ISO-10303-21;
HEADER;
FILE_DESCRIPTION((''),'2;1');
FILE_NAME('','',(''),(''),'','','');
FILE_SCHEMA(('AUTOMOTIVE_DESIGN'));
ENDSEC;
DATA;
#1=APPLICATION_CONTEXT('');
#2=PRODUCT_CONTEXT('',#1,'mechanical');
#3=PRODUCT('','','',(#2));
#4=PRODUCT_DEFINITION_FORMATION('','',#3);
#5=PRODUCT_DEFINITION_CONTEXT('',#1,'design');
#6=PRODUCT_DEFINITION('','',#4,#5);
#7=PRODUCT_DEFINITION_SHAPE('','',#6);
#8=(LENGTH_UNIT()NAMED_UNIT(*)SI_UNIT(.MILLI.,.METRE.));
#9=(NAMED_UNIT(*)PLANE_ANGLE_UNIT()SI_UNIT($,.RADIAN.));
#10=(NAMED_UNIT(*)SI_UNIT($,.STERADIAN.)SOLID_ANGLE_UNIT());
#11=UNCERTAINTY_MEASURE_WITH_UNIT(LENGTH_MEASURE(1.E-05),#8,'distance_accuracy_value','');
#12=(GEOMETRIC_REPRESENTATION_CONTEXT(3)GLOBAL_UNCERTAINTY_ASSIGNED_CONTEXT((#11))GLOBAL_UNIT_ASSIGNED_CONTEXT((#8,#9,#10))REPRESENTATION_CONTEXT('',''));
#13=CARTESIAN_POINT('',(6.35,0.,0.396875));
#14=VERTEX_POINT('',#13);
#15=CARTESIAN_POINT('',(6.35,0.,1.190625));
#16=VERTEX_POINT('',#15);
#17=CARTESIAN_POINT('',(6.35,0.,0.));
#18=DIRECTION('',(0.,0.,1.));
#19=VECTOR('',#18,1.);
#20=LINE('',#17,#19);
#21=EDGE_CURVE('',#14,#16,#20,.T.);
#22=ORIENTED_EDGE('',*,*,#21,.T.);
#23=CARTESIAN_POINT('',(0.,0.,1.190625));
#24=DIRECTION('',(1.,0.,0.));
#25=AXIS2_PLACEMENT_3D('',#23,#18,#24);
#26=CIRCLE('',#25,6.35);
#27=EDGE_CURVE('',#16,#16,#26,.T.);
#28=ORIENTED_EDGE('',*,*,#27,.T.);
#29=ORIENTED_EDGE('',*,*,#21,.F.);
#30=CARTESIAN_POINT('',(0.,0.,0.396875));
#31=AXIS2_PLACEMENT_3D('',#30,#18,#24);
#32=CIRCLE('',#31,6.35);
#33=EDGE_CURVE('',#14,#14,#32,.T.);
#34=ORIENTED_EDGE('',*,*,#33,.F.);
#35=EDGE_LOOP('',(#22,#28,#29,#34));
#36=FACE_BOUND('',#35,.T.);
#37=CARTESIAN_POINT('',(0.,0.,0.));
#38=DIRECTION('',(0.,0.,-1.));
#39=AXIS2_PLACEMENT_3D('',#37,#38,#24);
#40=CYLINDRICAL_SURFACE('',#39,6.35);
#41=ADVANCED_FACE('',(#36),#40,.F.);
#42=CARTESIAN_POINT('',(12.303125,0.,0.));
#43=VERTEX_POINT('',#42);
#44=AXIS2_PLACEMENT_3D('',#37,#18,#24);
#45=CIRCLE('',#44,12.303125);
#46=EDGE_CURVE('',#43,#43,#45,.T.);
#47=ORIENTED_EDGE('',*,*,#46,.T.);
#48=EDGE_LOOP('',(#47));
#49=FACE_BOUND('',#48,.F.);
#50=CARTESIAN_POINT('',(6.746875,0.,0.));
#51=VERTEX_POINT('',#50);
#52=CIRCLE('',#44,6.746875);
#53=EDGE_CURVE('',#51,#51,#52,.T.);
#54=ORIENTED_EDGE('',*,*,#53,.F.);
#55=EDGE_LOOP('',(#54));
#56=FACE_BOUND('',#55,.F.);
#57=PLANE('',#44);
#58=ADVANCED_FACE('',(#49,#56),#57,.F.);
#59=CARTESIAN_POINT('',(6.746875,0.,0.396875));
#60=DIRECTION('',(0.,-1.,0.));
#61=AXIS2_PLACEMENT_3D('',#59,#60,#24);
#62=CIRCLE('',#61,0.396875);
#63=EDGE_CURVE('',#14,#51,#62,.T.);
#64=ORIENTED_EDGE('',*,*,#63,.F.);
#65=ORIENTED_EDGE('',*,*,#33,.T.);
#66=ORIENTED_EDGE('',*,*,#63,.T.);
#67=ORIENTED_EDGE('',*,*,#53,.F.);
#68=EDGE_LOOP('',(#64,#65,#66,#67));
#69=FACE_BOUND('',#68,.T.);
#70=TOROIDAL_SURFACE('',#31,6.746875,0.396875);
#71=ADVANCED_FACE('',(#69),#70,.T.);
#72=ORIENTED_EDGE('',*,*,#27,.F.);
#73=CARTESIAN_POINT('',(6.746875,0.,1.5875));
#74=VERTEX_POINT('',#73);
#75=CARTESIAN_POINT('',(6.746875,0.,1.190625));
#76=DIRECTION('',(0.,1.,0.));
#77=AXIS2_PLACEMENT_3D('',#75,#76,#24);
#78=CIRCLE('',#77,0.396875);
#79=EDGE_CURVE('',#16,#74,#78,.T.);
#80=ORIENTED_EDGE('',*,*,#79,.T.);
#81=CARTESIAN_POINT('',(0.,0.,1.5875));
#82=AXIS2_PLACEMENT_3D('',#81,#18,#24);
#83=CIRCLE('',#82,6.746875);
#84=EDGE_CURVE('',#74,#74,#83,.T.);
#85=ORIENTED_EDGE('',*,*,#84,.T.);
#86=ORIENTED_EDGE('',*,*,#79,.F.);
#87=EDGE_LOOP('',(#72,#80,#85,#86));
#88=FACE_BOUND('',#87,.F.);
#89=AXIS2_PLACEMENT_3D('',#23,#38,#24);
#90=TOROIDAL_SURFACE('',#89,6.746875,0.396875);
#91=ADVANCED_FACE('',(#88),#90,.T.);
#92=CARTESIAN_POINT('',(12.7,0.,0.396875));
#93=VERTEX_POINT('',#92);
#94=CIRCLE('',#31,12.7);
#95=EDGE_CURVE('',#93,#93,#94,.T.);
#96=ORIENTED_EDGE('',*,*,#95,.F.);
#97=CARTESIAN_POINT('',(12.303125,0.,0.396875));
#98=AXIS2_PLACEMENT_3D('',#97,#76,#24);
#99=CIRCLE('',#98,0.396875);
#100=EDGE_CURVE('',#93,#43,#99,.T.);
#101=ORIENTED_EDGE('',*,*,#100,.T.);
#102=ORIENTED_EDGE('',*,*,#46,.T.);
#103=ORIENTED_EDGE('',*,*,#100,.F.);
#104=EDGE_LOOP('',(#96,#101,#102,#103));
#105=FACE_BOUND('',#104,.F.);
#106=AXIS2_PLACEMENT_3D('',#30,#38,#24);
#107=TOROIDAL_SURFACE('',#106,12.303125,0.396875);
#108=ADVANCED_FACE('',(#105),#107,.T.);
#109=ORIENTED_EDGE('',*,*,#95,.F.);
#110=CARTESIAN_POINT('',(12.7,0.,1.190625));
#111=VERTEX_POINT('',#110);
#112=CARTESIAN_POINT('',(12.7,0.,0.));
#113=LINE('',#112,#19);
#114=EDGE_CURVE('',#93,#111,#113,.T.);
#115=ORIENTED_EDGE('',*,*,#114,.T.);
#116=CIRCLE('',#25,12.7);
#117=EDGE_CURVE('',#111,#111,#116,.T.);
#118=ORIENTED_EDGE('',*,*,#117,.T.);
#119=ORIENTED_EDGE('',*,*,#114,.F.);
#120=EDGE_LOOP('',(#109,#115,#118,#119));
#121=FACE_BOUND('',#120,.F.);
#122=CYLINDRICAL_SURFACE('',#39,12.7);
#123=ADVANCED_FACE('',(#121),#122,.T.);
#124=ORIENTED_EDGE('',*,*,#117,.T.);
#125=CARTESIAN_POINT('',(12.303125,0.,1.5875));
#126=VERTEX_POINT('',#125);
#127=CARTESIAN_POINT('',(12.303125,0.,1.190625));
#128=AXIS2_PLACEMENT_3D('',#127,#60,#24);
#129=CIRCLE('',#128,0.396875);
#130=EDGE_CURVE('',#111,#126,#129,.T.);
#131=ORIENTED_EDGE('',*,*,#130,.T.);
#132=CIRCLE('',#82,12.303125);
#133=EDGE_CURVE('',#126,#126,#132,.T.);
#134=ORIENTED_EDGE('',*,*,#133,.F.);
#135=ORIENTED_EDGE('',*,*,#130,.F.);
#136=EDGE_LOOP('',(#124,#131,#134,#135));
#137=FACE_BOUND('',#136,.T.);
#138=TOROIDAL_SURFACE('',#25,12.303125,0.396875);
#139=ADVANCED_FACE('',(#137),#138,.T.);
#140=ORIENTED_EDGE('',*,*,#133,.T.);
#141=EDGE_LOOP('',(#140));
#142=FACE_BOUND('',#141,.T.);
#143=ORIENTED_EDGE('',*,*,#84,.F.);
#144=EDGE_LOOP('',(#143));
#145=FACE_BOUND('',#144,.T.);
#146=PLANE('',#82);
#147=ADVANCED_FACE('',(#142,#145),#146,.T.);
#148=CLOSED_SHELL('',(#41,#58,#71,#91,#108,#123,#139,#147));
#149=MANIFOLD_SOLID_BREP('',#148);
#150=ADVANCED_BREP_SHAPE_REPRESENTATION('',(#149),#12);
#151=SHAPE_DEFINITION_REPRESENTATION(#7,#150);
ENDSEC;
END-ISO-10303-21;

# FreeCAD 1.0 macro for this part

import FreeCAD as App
import Part
import Sketcher
from FreeCAD import Vector
Q = App.Units.Quantity

doc = App.newDocument("Part")
body = doc.addObject("PartDesign::Body", "Body")

sketch1 = body.newObject("Sketcher::SketchObject", "Sketch")
sketch1.AttachmentSupport = (doc.getObject("XY_Plane"), [""])
sketch1.MapMode = "FlatFace"
sketch1.addGeometry([
    Part.Circle(Vector(0, 0, 0), Vector(0, 0, 1), 13),
    Part.Circle(Vector(0, 0, 0), Vector(0, 0, 1), 6),
], False)
sketch1.addConstraint([
    Sketcher.Constraint("Coincident", 0, 3, -1, 1),
    Sketcher.Constraint("Coincident", 1, 3, -1, 1),
    Sketcher.Constraint("Diameter", 0, Q("1 in")),
    Sketcher.Constraint("Diameter", 1, Q("0.5 in")),
])
pad1 = body.newObject("PartDesign::Pad", "Pad")
pad1.Profile = sketch1
pad1.Length = Q("0.0625 in")
doc.recompute()

fillet = body.newObject("PartDesign::Fillet", "Fillet")
fillet.Base = (pad1, ["Edge1"])
fillet.UseAllEdges = True
fillet.Radius = Q("0.015625 in")

doc.recompute()
